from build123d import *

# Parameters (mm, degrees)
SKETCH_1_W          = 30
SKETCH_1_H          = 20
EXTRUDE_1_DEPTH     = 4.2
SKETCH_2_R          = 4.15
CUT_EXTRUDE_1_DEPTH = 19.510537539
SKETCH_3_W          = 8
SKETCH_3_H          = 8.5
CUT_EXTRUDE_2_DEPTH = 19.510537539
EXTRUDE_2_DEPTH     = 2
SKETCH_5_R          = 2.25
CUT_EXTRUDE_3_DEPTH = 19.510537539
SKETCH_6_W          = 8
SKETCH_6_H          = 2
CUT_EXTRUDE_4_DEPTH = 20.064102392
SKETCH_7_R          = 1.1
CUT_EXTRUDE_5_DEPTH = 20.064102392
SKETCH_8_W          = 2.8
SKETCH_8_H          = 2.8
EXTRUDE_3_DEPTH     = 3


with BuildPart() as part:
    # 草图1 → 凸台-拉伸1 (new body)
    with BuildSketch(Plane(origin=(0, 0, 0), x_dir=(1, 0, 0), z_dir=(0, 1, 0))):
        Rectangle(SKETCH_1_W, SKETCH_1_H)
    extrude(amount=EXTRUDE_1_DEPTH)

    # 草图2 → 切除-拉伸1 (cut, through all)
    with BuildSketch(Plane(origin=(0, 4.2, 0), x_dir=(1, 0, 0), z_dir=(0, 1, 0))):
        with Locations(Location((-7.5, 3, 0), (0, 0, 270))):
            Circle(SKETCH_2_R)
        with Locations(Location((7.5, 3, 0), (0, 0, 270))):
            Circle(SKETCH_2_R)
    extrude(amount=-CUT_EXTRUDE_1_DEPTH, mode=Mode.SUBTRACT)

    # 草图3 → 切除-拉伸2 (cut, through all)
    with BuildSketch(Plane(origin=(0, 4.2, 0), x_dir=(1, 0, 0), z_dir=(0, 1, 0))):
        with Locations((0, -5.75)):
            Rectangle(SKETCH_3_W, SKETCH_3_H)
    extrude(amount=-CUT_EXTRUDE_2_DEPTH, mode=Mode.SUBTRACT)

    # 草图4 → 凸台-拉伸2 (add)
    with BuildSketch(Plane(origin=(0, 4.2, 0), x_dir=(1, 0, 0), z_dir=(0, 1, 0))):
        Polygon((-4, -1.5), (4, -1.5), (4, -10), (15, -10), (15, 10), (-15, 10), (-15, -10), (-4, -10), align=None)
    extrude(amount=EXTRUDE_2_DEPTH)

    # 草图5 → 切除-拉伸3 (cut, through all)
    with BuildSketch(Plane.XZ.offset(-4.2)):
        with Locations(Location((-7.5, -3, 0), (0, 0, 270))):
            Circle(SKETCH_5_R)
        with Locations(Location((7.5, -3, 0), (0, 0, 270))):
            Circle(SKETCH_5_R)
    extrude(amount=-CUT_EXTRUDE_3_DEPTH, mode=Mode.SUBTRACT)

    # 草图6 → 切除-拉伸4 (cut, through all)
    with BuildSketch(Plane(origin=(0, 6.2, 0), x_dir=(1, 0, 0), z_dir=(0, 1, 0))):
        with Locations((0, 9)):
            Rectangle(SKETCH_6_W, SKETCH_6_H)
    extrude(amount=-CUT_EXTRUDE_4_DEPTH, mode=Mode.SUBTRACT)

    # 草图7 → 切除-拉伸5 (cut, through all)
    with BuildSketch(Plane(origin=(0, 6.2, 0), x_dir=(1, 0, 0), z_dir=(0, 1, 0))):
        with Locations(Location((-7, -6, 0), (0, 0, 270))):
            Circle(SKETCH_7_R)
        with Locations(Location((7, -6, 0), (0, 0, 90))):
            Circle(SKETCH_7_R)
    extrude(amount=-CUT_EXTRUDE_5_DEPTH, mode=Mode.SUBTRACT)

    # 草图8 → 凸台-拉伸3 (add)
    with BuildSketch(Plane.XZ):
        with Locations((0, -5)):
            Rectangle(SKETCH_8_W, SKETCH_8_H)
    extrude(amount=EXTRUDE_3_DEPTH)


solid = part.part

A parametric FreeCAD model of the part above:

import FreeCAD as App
import Part
import Sketcher

V = App.Vector

doc = App.newDocument("Part")
body = doc.addObject("PartDesign::Body", "Body")

sketch1 = body.newObject("Sketcher::SketchObject", "Sketch")
sketch1.AttachmentSupport = (doc.getObject("XZ_Plane"), [""])
sketch1.MapMode = "FlatFace"
sketch1.addGeometry([
    Part.LineSegment(V(-15, -10, 0), V(-15, 10, 0)),
    Part.LineSegment(V(-15, 10, 0), V(15, 10, 0)),
    Part.LineSegment(V(15, 10, 0), V(15, -10, 0)),
    Part.LineSegment(V(15, -10, 0), V(-15, -10, 0)),
], False)
sketch1.addConstraint([
    Sketcher.Constraint("Coincident", 0, 2, 1, 1),
    Sketcher.Constraint("Coincident", 1, 2, 2, 1),
    Sketcher.Constraint("Coincident", 2, 2, 3, 1),
    Sketcher.Constraint("Coincident", 3, 2, 0, 1),
    Sketcher.Constraint("Vertical", 0),
    Sketcher.Constraint("Horizontal", 1),
    Sketcher.Constraint("Vertical", 2),
    Sketcher.Constraint("Horizontal", 3),
    Sketcher.Constraint("Symmetric", 0, 2, 2, 2, -1, 1),
    Sketcher.Constraint("DistanceX", 1, 1, 1, 2, 30.0),
    Sketcher.Constraint("DistanceY", 0, 1, 0, 2, 20.0),
])
pad1 = body.newObject("PartDesign::Pad", "Pad")
pad1.Profile = sketch1
pad1.Length = 4.2
pad1.Reversed = True

sketch2 = body.newObject("Sketcher::SketchObject", "Sketch001")
sketch2.AttachmentSupport = (doc.getObject("XZ_Plane"), [""])
sketch2.MapMode = "FlatFace"
sketch2.AttachmentOffset = App.Placement(V(0, 0, -4.2), App.Rotation())
sketch2.addGeometry([
    Part.Circle(V(-7.5, -3, 0), V(0, 0, 1), 4.2),
    Part.Circle(V(7.5, -3, 0), V(0, 0, 1), 4.2),
], False)
sketch2.addConstraint([
    Sketcher.Constraint("Equal", 0, 1),
    Sketcher.Constraint("Symmetric", 0, 3, 1, 3, -2),
    Sketcher.Constraint("Diameter", 0, 8.3),
    Sketcher.Constraint("DistanceY", 0, 3, -1, 1, 3.0),
    Sketcher.Constraint("DistanceX", 0, 3, 1, 3, 15.0),
])
pocket1 = body.newObject("PartDesign::Pocket", "Pocket")
pocket1.Profile = sketch2
pocket1.Type = "ThroughAll"
pocket1.Reversed = True

sketch3 = body.newObject("Sketcher::SketchObject", "Sketch002")
sketch3.AttachmentSupport = (doc.getObject("XZ_Plane"), [""])
sketch3.MapMode = "FlatFace"
sketch3.AttachmentOffset = App.Placement(V(0, 0, -4.2), App.Rotation())
sketch3.addGeometry([
    Part.LineSegment(V(-4, 2, 0), V(-4, 10, 0)),
    Part.LineSegment(V(-4, 10, 0), V(4, 10, 0)),
    Part.LineSegment(V(4, 10, 0), V(4, 2, 0)),
    Part.LineSegment(V(4, 2, 0), V(-4, 2, 0)),
], False)
sketch3.addConstraint([
    Sketcher.Constraint("Coincident", 0, 2, 1, 1),
    Sketcher.Constraint("Coincident", 1, 2, 2, 1),
    Sketcher.Constraint("Coincident", 2, 2, 3, 1),
    Sketcher.Constraint("Coincident", 3, 2, 0, 1),
    Sketcher.Constraint("Vertical", 0),
    Sketcher.Constraint("Horizontal", 1),
    Sketcher.Constraint("Vertical", 2),
    Sketcher.Constraint("Horizontal", 3),
    Sketcher.Constraint("DistanceX", 1, 1, 1, 2, 8.0),
    Sketcher.Constraint("DistanceY", 0, 1, 0, 2, 8.5),
    Sketcher.Constraint("DistanceX", 0, 2, -1, 1, 4.0),
    Sketcher.Constraint("DistanceY", -1, 1, 0, 2, 10.0),
])
pocket2 = body.newObject("PartDesign::Pocket", "Pocket001")
pocket2.Profile = sketch3
pocket2.Type = "ThroughAll"
pocket2.Reversed = True

sketch4 = body.newObject("Sketcher::SketchObject", "Sketch003")
sketch4.AttachmentSupport = (doc.getObject("XZ_Plane"), [""])
sketch4.MapMode = "FlatFace"
sketch4.AttachmentOffset = App.Placement(V(0, 0, -4.2), App.Rotation())
sketch4.addGeometry([
    Part.LineSegment(V(-4, 2, 0), V(4, 2, 0)),
    Part.LineSegment(V(4, 2, 0), V(4, 10, 0)),
    Part.LineSegment(V(4, 10, 0), V(15, 10, 0)),
    Part.LineSegment(V(15, 10, 0), V(15, -10, 0)),
    Part.LineSegment(V(15, -10, 0), V(-15, -10, 0)),
    Part.LineSegment(V(-15, -10, 0), V(-15, 10, 0)),
    Part.LineSegment(V(-15, 10, 0), V(-4, 10, 0)),
    Part.LineSegment(V(-4, 10, 0), V(-4, 2, 0)),
], False)
sketch4.addConstraint([
    Sketcher.Constraint("Coincident", 0, 2, 1, 1),
    Sketcher.Constraint("Coincident", 1, 2, 2, 1),
    Sketcher.Constraint("Coincident", 2, 2, 3, 1),
    Sketcher.Constraint("Coincident", 3, 2, 4, 1),
    Sketcher.Constraint("Coincident", 4, 2, 5, 1),
    Sketcher.Constraint("Coincident", 5, 2, 6, 1),
    Sketcher.Constraint("Coincident", 6, 2, 7, 1),
    Sketcher.Constraint("Coincident", 7, 2, 0, 1),
    Sketcher.Constraint("Horizontal", 0),
    Sketcher.Constraint("Vertical", 1),
    Sketcher.Constraint("Horizontal", 2),
    Sketcher.Constraint("Vertical", 3),
    Sketcher.Constraint("Horizontal", 4),
    Sketcher.Constraint("Vertical", 5),
    Sketcher.Constraint("Horizontal", 6),
    Sketcher.Constraint("Vertical", 7),
    Sketcher.Constraint("Symmetric", 2, 2, 4, 2, -1, 1),
    Sketcher.Constraint("Symmetric", 1, 2, 6, 2, -2),
    Sketcher.Constraint("DistanceX", 0, 1, 0, 2, 8.0),
    Sketcher.Constraint("DistanceX", 2, 1, 2, 2, 11.0),
    Sketcher.Constraint("DistanceY", 3, 2, 3, 1, 20.0),
    Sketcher.Constraint("DistanceY", 1, 1, 1, 2, 8.5),
])
pad2 = body.newObject("PartDesign::Pad", "Pad001")
pad2.Profile = sketch4
pad2.Length = 2
pad2.Reversed = True

sketch5 = body.newObject("Sketcher::SketchObject", "Sketch004")
sketch5.AttachmentSupport = (doc.getObject("XZ_Plane"), [""])
sketch5.MapMode = "FlatFace"
sketch5.AttachmentOffset = App.Placement(V(0, 0, -4.2), App.Rotation())
sketch5.addGeometry([
    Part.Circle(V(-7.5, -3, 0), V(0, 0, 1), 2.2),
    Part.Circle(V(7.5, -3, 0), V(0, 0, 1), 2.2),
], False)
sketch5.addConstraint([
    Sketcher.Constraint("Equal", 0, 1),
    Sketcher.Constraint("Symmetric", 0, 3, 1, 3, -2),
    Sketcher.Constraint("Diameter", 0, 4.5),
    Sketcher.Constraint("DistanceY", 0, 3, -1, 1, 3.0),
    Sketcher.Constraint("DistanceX", 0, 3, 1, 3, 15.0),
])
pocket3 = body.newObject("PartDesign::Pocket", "Pocket002")
pocket3.Profile = sketch5
pocket3.Type = "ThroughAll"

sketch6 = body.newObject("Sketcher::SketchObject", "Sketch005")
sketch6.AttachmentSupport = (doc.getObject("XZ_Plane"), [""])
sketch6.MapMode = "FlatFace"
sketch6.AttachmentOffset = App.Placement(V(0, 0, -6.2), App.Rotation())
sketch6.addGeometry([
    Part.LineSegment(V(-4, -10, 0), V(-4, -8, 0)),
    Part.LineSegment(V(-4, -8, 0), V(4, -8, 0)),
    Part.LineSegment(V(4, -8, 0), V(4, -10, 0)),
    Part.LineSegment(V(4, -10, 0), V(-4, -10, 0)),
], False)
sketch6.addConstraint([
    Sketcher.Constraint("Coincident", 0, 2, 1, 1),
    Sketcher.Constraint("Coincident", 1, 2, 2, 1),
    Sketcher.Constraint("Coincident", 2, 2, 3, 1),
    Sketcher.Constraint("Coincident", 3, 2, 0, 1),
    Sketcher.Constraint("Vertical", 0),
    Sketcher.Constraint("Horizontal", 1),
    Sketcher.Constraint("Vertical", 2),
    Sketcher.Constraint("Horizontal", 3),
    Sketcher.Constraint("DistanceX", 1, 1, 1, 2, 8.0),
    Sketcher.Constraint("DistanceY", 0, 1, 0, 2, 2.0),
    Sketcher.Constraint("DistanceX", 0, 2, -1, 1, 4.0),
    Sketcher.Constraint("DistanceY", 0, 2, -1, 1, 8.0),
])
pocket4 = body.newObject("PartDesign::Pocket", "Pocket003")
pocket4.Profile = sketch6
pocket4.Type = "ThroughAll"
pocket4.Reversed = True

sketch7 = body.newObject("Sketcher::SketchObject", "Sketch006")
sketch7.AttachmentSupport = (doc.getObject("XZ_Plane"), [""])
sketch7.MapMode = "FlatFace"
sketch7.AttachmentOffset = App.Placement(V(0, 0, -6.2), App.Rotation())
sketch7.addGeometry([
    Part.Circle(V(-7, 6, 0), V(0, 0, 1), 1.1),
    Part.Circle(V(7, 6, 0), V(0, 0, 1), 1.1),
], False)
sketch7.addConstraint([
    Sketcher.Constraint("Equal", 0, 1),
    Sketcher.Constraint("Symmetric", 0, 3, 1, 3, -2),
    Sketcher.Constraint("Diameter", 0, 2.2),
    Sketcher.Constraint("DistanceX", 0, 3, -1, 1, 7.0),
    Sketcher.Constraint("DistanceY", -1, 1, 0, 3, 6.0),
])
pocket5 = body.newObject("PartDesign::Pocket", "Pocket004")
pocket5.Profile = sketch7
pocket5.Type = "ThroughAll"
pocket5.Reversed = True

sketch8 = body.newObject("Sketcher::SketchObject", "Sketch007")
sketch8.AttachmentSupport = (doc.getObject("XZ_Plane"), [""])
sketch8.MapMode = "FlatFace"
sketch8.addGeometry([
    Part.LineSegment(V(-1.4, -3.6, 0), V(-1.4, -6.4, 0)),
    Part.LineSegment(V(-1.4, -6.4, 0), V(1.4, -6.4, 0)),
    Part.LineSegment(V(1.4, -6.4, 0), V(1.4, -3.6, 0)),
    Part.LineSegment(V(1.4, -3.6, 0), V(-1.4, -3.6, 0)),
], False)
sketch8.addConstraint([
    Sketcher.Constraint("Coincident", 0, 2, 1, 1),
    Sketcher.Constraint("Coincident", 1, 2, 2, 1),
    Sketcher.Constraint("Coincident", 2, 2, 3, 1),
    Sketcher.Constraint("Coincident", 3, 2, 0, 1),
    Sketcher.Constraint("Vertical", 0),
    Sketcher.Constraint("Horizontal", 1),
    Sketcher.Constraint("Vertical", 2),
    Sketcher.Constraint("Horizontal", 3),
    Sketcher.Constraint("Equal", 3, 0),
    Sketcher.Constraint("DistanceX", 1, 1, 1, 2, 2.8),
    Sketcher.Constraint("DistanceX", 0, 2, -1, 1, 1.4),
    Sketcher.Constraint("DistanceY", 0, 2, -1, 1, 6.4),
])
pad3 = body.newObject("PartDesign::Pad", "Pad002")
pad3.Profile = sketch8
pad3.Length = 3

doc.recompute()
